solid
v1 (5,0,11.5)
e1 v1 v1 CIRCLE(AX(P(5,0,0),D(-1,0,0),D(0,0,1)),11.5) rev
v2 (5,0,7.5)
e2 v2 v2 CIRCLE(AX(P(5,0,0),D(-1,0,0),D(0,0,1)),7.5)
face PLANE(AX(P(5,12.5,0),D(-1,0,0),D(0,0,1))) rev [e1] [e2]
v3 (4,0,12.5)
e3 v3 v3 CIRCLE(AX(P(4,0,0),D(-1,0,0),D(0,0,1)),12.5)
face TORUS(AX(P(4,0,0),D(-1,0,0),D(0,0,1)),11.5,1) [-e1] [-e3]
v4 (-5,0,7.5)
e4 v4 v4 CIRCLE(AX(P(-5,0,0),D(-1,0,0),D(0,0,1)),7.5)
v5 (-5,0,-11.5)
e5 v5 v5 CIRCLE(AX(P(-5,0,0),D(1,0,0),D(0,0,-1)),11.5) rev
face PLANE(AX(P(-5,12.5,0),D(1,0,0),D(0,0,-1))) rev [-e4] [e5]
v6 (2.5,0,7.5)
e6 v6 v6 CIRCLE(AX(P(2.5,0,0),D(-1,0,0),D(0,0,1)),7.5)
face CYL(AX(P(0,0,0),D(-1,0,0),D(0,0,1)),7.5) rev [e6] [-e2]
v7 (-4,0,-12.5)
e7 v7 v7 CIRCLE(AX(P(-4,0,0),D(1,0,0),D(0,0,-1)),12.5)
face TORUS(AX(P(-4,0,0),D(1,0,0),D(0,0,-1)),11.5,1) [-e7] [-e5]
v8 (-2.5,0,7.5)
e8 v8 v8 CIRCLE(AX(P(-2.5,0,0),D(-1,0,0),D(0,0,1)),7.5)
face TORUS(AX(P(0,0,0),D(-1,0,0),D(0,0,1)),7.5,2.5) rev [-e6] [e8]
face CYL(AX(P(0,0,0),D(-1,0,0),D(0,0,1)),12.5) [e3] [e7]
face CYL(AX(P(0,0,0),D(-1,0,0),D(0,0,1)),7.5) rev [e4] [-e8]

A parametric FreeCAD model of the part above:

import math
import FreeCAD as App
import Part
import Sketcher
from FreeCAD import Vector
Q = App.Units.Quantity


def edges_at(feature, points):
    """Names of the edges that pass closest to the given points."""
    edges = feature.Shape.Edges
    near = lambda p: min(range(len(edges)), key=lambda i: edges[i].distToShape(Part.Vertex(*p))[0])
    return sorted({f"Edge{near(p) + 1}" for p in points})

doc = App.newDocument("Part")
body = doc.addObject("PartDesign::Body", "Body")

# Sketch on XY plane
sketch1 = body.newObject("Sketcher::SketchObject", "Sketch")
sketch1.AttachmentSupport = (doc.getObject("XY_Plane"), [""])
sketch1.MapMode = "FlatFace"
sketch1.addGeometry([
    Part.LineSegment(Vector(2.5, 7.5, 0), Vector(5, 7.5, 0)),  # 0
    Part.LineSegment(Vector(5, 7.5, 0), Vector(5, 12.5, 0)),  # 1
    Part.LineSegment(Vector(5, 12.5, 0), Vector(-5, 12.5, 0)),  # 2
    Part.LineSegment(Vector(-5, 12.5, 0), Vector(-5, 7.5, 0)),  # 3
    Part.LineSegment(Vector(-5, 7.5, 0), Vector(-2.5, 7.5, 0)),  # 4
    Part.ArcOfCircle(Part.Circle(Vector(0, 7.5, 0), Vector(0, 0, 1), 2.5), math.radians(0), math.radians(180)),  # 5
], False)
sketch1.addConstraint([
    Sketcher.Constraint("Coincident", 0, 2, 1, 1),
    Sketcher.Constraint("Coincident", 1, 2, 2, 1),
    Sketcher.Constraint("Coincident", 2, 2, 3, 1),
    Sketcher.Constraint("Coincident", 3, 2, 4, 1),
    Sketcher.Constraint("Coincident", 4, 2, 5, 2),
    Sketcher.Constraint("Coincident", 5, 1, 0, 1),
    Sketcher.Constraint("Horizontal", 0),
    Sketcher.Constraint("Vertical", 1),
    Sketcher.Constraint("Horizontal", 2),
    Sketcher.Constraint("Vertical", 3),
    Sketcher.Constraint("Horizontal", 4),
    Sketcher.Constraint("Symmetric", 0, 2, 3, 2, -2),
    Sketcher.Constraint("PointOnObject", 5, 3, -2),
    Sketcher.Constraint("Horizontal", 5, 3, 0, 2),
    Sketcher.Constraint("Radius", 5, Q("2.5 mm")),
    Sketcher.Constraint("DistanceX", 2, 2, 2, 1, Q("10 mm")),
    Sketcher.Constraint("DistanceY", 1, 1, 1, 2, Q("5 mm")),
    Sketcher.Constraint("DistanceY", -1, 1, 5, 3, Q("7.5 mm")),
])
revolution = body.newObject("PartDesign::Revolution", "Revolution")
revolution.Profile = sketch1
revolution.ReferenceAxis = (sketch1, ["H_Axis"])
revolution.Angle = 360
doc.recompute()

fillet = body.newObject("PartDesign::Fillet", "Fillet")
fillet.Base = (revolution, edges_at(revolution, [(-5, 0, -12.5), (5, 0, -12.5)]))
fillet.Radius = 1

doc.recompute()
